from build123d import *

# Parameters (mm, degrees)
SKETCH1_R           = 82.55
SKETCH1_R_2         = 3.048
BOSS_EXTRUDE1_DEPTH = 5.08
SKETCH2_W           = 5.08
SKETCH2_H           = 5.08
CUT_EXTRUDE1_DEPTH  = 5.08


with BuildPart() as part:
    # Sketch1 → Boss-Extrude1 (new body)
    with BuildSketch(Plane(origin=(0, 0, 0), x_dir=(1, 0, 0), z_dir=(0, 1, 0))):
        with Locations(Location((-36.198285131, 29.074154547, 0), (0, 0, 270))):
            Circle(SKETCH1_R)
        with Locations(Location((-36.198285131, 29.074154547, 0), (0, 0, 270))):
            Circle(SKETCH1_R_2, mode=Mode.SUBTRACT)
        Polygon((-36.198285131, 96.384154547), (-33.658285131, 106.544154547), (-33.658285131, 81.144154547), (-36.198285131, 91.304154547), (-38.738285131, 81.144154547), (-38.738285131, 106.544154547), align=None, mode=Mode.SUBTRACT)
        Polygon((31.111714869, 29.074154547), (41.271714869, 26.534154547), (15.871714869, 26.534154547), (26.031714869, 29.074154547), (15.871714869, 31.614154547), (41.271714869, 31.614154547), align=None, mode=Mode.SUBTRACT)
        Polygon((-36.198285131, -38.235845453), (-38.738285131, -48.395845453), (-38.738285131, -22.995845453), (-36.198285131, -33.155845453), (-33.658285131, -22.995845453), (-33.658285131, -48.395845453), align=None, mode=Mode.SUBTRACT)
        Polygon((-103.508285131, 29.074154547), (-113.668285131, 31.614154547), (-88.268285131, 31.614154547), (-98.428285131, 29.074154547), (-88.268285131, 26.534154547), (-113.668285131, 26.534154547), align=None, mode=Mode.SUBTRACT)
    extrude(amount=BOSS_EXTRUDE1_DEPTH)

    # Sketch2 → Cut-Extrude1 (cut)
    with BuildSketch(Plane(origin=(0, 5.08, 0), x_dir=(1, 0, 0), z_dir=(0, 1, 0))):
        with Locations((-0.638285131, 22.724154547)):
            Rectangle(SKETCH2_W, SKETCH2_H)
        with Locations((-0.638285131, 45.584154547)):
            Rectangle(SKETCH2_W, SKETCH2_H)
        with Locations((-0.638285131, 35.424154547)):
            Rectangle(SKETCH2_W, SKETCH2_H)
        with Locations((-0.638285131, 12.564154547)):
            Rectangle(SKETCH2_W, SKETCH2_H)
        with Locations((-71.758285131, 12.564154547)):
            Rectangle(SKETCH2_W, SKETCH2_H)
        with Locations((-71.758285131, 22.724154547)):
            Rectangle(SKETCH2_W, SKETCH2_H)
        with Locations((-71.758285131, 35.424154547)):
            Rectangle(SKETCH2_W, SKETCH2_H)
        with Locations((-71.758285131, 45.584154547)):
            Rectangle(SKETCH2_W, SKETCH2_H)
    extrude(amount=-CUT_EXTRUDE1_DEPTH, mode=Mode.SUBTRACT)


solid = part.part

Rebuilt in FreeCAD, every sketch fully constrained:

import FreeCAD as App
import Part
import Sketcher
from FreeCAD import Vector
Q = App.Units.Quantity

doc = App.newDocument("Part")
body = doc.addObject("PartDesign::Body", "Body")

# Sketch on XZ plane
sketch1 = doc.addObject("Sketcher::SketchObject", "Sketch")
body.addObject(sketch1)
sketch1.AttachmentSupport = (doc.XZ_Plane, [""])
sketch1.MapMode = "FlatFace"
sketch1.addGeometry([
    Part.Circle(Vector(-36.198285, -29.074155, 0), Vector(0, 0, 1), 82.55),  # 0
    Part.LineSegment(Vector(-38.738285, -106.544155, 0), Vector(-36.198285, -96.384155, 0)),  # 1
    Part.LineSegment(Vector(-36.198285, -96.384155, 0), Vector(-33.658285, -106.544155, 0)),  # 2
    Part.LineSegment(Vector(-33.658285, -106.544155, 0), Vector(-33.658285, -81.144155, 0)),  # 3
    Part.LineSegment(Vector(-33.658285, -81.144155, 0), Vector(-36.198285, -91.304155, 0)),  # 4
    Part.LineSegment(Vector(-36.198285, -91.304155, 0), Vector(-38.738285, -81.144155, 0)),  # 5
    Part.LineSegment(Vector(-38.738285, -81.144155, 0), Vector(-38.738285, -106.544155, 0)),  # 6
    Part.LineSegment(Vector(-113.668285, -26.534155, 0), Vector(-103.508285, -29.074155, 0)),  # 7
    Part.LineSegment(Vector(-103.508285, -29.074155, 0), Vector(-113.668285, -31.614155, 0)),  # 8
    Part.LineSegment(Vector(-113.668285, -31.614155, 0), Vector(-88.268285, -31.614155, 0)),  # 9
    Part.LineSegment(Vector(-88.268285, -31.614155, 0), Vector(-98.428285, -29.074155, 0)),  # 10
    Part.LineSegment(Vector(-98.428285, -29.074155, 0), Vector(-88.268285, -26.534155, 0)),  # 11
    Part.LineSegment(Vector(-88.268285, -26.534155, 0), Vector(-113.668285, -26.534155, 0)),  # 12
    Part.LineSegment(Vector(41.271715, -31.614155, 0), Vector(31.111715, -29.074155, 0)),  # 13
    Part.LineSegment(Vector(31.111715, -29.074155, 0), Vector(41.271715, -26.534155, 0)),  # 14
    Part.LineSegment(Vector(41.271715, -26.534155, 0), Vector(15.871715, -26.534155, 0)),  # 15
    Part.LineSegment(Vector(15.871715, -26.534155, 0), Vector(26.031715, -29.074155, 0)),  # 16
    Part.LineSegment(Vector(26.031715, -29.074155, 0), Vector(15.871715, -31.614155, 0)),  # 17
    Part.LineSegment(Vector(15.871715, -31.614155, 0), Vector(41.271715, -31.614155, 0)),  # 18
    Part.Circle(Vector(-36.198285, -29.074155, 0), Vector(0, 0, 1), 3.048),  # 19
    Part.LineSegment(Vector(-33.658285, 48.395845, 0), Vector(-36.198285, 38.235845, 0)),  # 20
    Part.LineSegment(Vector(-36.198285, 38.235845, 0), Vector(-38.738285, 48.395845, 0)),  # 21
    Part.LineSegment(Vector(-38.738285, 48.395845, 0), Vector(-38.738285, 22.995845, 0)),  # 22
    Part.LineSegment(Vector(-38.738285, 22.995845, 0), Vector(-36.198285, 33.155845, 0)),  # 23
    Part.LineSegment(Vector(-36.198285, 33.155845, 0), Vector(-33.658285, 22.995845, 0)),  # 24
    Part.LineSegment(Vector(-33.658285, 22.995845, 0), Vector(-33.658285, 48.395845, 0)),  # 25
], False)
sketch1.addConstraint([
    Sketcher.Constraint("Coincident", 1, 2, 2, 1),
    Sketcher.Constraint("Coincident", 2, 2, 3, 1),
    Sketcher.Constraint("Coincident", 3, 2, 4, 1),
    Sketcher.Constraint("Coincident", 4, 2, 5, 1),
    Sketcher.Constraint("Coincident", 5, 2, 6, 1),
    Sketcher.Constraint("Coincident", 6, 2, 1, 1),
    Sketcher.Constraint("Coincident", 7, 2, 8, 1),
    Sketcher.Constraint("Coincident", 8, 2, 9, 1),
    Sketcher.Constraint("Coincident", 9, 2, 10, 1),
    Sketcher.Constraint("Coincident", 10, 2, 11, 1),
    Sketcher.Constraint("Coincident", 11, 2, 12, 1),
    Sketcher.Constraint("Coincident", 12, 2, 7, 1),
    Sketcher.Constraint("Coincident", 13, 2, 14, 1),
    Sketcher.Constraint("Coincident", 14, 2, 15, 1),
    Sketcher.Constraint("Coincident", 15, 2, 16, 1),
    Sketcher.Constraint("Coincident", 16, 2, 17, 1),
    Sketcher.Constraint("Coincident", 17, 2, 18, 1),
    Sketcher.Constraint("Coincident", 18, 2, 13, 1),
    Sketcher.Constraint("Coincident", 20, 2, 21, 1),
    Sketcher.Constraint("Coincident", 21, 2, 22, 1),
    Sketcher.Constraint("Coincident", 22, 2, 23, 1),
    Sketcher.Constraint("Coincident", 23, 2, 24, 1),
    Sketcher.Constraint("Coincident", 24, 2, 25, 1),
    Sketcher.Constraint("Coincident", 25, 2, 20, 1),
    Sketcher.Constraint("Vertical", 3),
    Sketcher.Constraint("Vertical", 6),
    Sketcher.Constraint("Horizontal", 9),
    Sketcher.Constraint("Horizontal", 12),
    Sketcher.Constraint("Horizontal", 15),
    Sketcher.Constraint("Horizontal", 18),
    Sketcher.Constraint("Vertical", 22),
    Sketcher.Constraint("Vertical", 25),
    Sketcher.Constraint("Coincident", 19, 3, 0, 3),
    Sketcher.Constraint("Parallel", 1, 4),
    Sketcher.Constraint("Parallel", 2, 5),
    Sketcher.Constraint("Perpendicular", 4, 7),
    Sketcher.Constraint("Perpendicular", 5, 8),
    Sketcher.Constraint("Parallel", 7, 10),
    Sketcher.Constraint("Parallel", 8, 11),
    Sketcher.Constraint("Parallel", 10, 13),
    Sketcher.Constraint("Parallel", 11, 14),
    Sketcher.Constraint("Parallel", 13, 16),
    Sketcher.Constraint("Parallel", 14, 17),
    Sketcher.Constraint("Perpendicular", 16, 20),
    Sketcher.Constraint("Perpendicular", 17, 21),
    Sketcher.Constraint("Parallel", 20, 23),
    Sketcher.Constraint("Parallel", 21, 24),
    Sketcher.Constraint("Horizontal", 3, 2, 5, 2),
    Sketcher.Constraint("Horizontal", 2, 2, 6, 2),
    Sketcher.Constraint("Horizontal", 19, 3, 7, 2),
    Sketcher.Constraint("Horizontal", 7, 2, 10, 2),
    Sketcher.Constraint("Horizontal", 10, 2, 13, 2),
    Sketcher.Constraint("Horizontal", 12, 2, 14, 2),
    Sketcher.Constraint("Horizontal", 13, 2, 16, 2),
    Sketcher.Constraint("Horizontal", 9, 2, 17, 2),
    Sketcher.Constraint("Horizontal", 22, 2, 24, 2),
    Sketcher.Constraint("Horizontal", 21, 2, 25, 2),
    Sketcher.Constraint("Vertical", 19, 3, 1, 2),
    Sketcher.Constraint("Vertical", 1, 2, 4, 2),
    Sketcher.Constraint("Vertical", 9, 2, 11, 2),
    Sketcher.Constraint("Vertical", 4, 2, 20, 2),
    Sketcher.Constraint("Vertical", 6, 2, 21, 2),
    Sketcher.Constraint("Equal", 12, 15),
    Sketcher.Constraint("Equal", 18, 3),
    Sketcher.Constraint("Equal", 6, 22),
    Sketcher.Constraint("Equal", 5, 7),
    Sketcher.Constraint("Diameter", 0, Q("6.5 in")),
    Sketcher.Constraint("Diameter", 19, Q("0.24 in")),
    Sketcher.Constraint("DistanceX", 9, 1, 9, 2, Q("1 in")),
    Sketcher.Constraint("DistanceX", 1, 2, 2, 2, Q("0.1 in")),
    Sketcher.Constraint("DistanceY", 2, 2, 1, 2, Q("0.4 in")),
    Sketcher.Constraint("DistanceY", 1, 2, 0, 3, Q("2.65 in")),
    Sketcher.Constraint("DistanceX", 7, 2, 0, 3, Q("2.65 in")),
    Sketcher.Constraint("DistanceX", 0, 3, 13, 2, Q("2.65 in")),
    Sketcher.Constraint("DistanceY", 0, 3, 20, 2, Q("2.65 in")),
    Sketcher.Constraint("DistanceX", 0, 3, -1, 1, Q("36.198285 mm")),
    Sketcher.Constraint("DistanceY", 0, 3, -1, 1, Q("29.074155 mm")),
])
pad1 = doc.addObject("PartDesign::Pad", "Pad")
body.addObject(pad1)
pad1.Profile = sketch1
pad1.Length = Q("0.2 in")
pad1.Reversed = True

# Sketch on XZ plane
sketch2 = doc.addObject("Sketcher::SketchObject", "Sketch001")
body.addObject(sketch2)
sketch2.AttachmentSupport = (doc.XZ_Plane, [""])
sketch2.MapMode = "FlatFace"
sketch2.AttachmentOffset = App.Placement(Vector(0, 0, -0.2 * 25.4), App.Rotation())
sketch2.addGeometry([
    Part.LineSegment(Vector(-3.178285, -25.264155, 0), Vector(-3.178285, -20.184155, 0)),  # 0
    Part.LineSegment(Vector(-3.178285, -20.184155, 0), Vector(1.901715, -20.184155, 0)),  # 1
    Part.LineSegment(Vector(1.901715, -20.184155, 0), Vector(1.901715, -25.264155, 0)),  # 2
    Part.LineSegment(Vector(1.901715, -25.264155, 0), Vector(-3.178285, -25.264155, 0)),  # 3
    Part.LineSegment(Vector(-3.178285, -48.124155, 0), Vector(-3.178285, -43.044155, 0)),  # 4
    Part.LineSegment(Vector(-3.178285, -43.044155, 0), Vector(1.901715, -43.044155, 0)),  # 5
    Part.LineSegment(Vector(1.901715, -43.044155, 0), Vector(1.901715, -48.124155, 0)),  # 6
    Part.LineSegment(Vector(1.901715, -48.124155, 0), Vector(-3.178285, -48.124155, 0)),  # 7
    Part.LineSegment(Vector(-3.178285, -37.964155, 0), Vector(-3.178285, -32.884155, 0)),  # 8
    Part.LineSegment(Vector(-3.178285, -32.884155, 0), Vector(1.901715, -32.884155, 0)),  # 9
    Part.LineSegment(Vector(1.901715, -32.884155, 0), Vector(1.901715, -37.964155, 0)),  # 10
    Part.LineSegment(Vector(1.901715, -37.964155, 0), Vector(-3.178285, -37.964155, 0)),  # 11
    Part.LineSegment(Vector(-3.178285, -15.104155, 0), Vector(-3.178285, -10.024155, 0)),  # 12
    Part.LineSegment(Vector(-3.178285, -10.024155, 0), Vector(1.901715, -10.024155, 0)),  # 13
    Part.LineSegment(Vector(1.901715, -10.024155, 0), Vector(1.901715, -15.104155, 0)),  # 14
    Part.LineSegment(Vector(1.901715, -15.104155, 0), Vector(-3.178285, -15.104155, 0)),  # 15
    Part.LineSegment(Vector(-74.298285, -15.104155, 0), Vector(-74.298285, -10.024155, 0)),  # 16
    Part.LineSegment(Vector(-74.298285, -10.024155, 0), Vector(-69.218285, -10.024155, 0)),  # 17
    Part.LineSegment(Vector(-69.218285, -10.024155, 0), Vector(-69.218285, -15.104155, 0)),  # 18
    Part.LineSegment(Vector(-69.218285, -15.104155, 0), Vector(-74.298285, -15.104155, 0)),  # 19
    Part.LineSegment(Vector(-74.298285, -25.264155, 0), Vector(-74.298285, -20.184155, 0)),  # 20
    Part.LineSegment(Vector(-74.298285, -20.184155, 0), Vector(-69.218285, -20.184155, 0)),  # 21
    Part.LineSegment(Vector(-69.218285, -20.184155, 0), Vector(-69.218285, -25.264155, 0)),  # 22
    Part.LineSegment(Vector(-69.218285, -25.264155, 0), Vector(-74.298285, -25.264155, 0)),  # 23
    Part.LineSegment(Vector(-74.298285, -37.964155, 0), Vector(-74.298285, -32.884155, 0)),  # 24
    Part.LineSegment(Vector(-74.298285, -32.884155, 0), Vector(-69.218285, -32.884155, 0)),  # 25
    Part.LineSegment(Vector(-69.218285, -32.884155, 0), Vector(-69.218285, -37.964155, 0)),  # 26
    Part.LineSegment(Vector(-69.218285, -37.964155, 0), Vector(-74.298285, -37.964155, 0)),  # 27
    Part.LineSegment(Vector(-74.298285, -48.124155, 0), Vector(-74.298285, -43.044155, 0)),  # 28
    Part.LineSegment(Vector(-74.298285, -43.044155, 0), Vector(-69.218285, -43.044155, 0)),  # 29
    Part.LineSegment(Vector(-69.218285, -43.044155, 0), Vector(-69.218285, -48.124155, 0)),  # 30
    Part.LineSegment(Vector(-69.218285, -48.124155, 0), Vector(-74.298285, -48.124155, 0)),  # 31
], False)
sketch2.addConstraint([
    Sketcher.Constraint("Coincident", 0, 2, 1, 1),
    Sketcher.Constraint("Coincident", 1, 2, 2, 1),
    Sketcher.Constraint("Coincident", 2, 2, 3, 1),
    Sketcher.Constraint("Coincident", 3, 2, 0, 1),
    Sketcher.Constraint("Coincident", 4, 2, 5, 1),
    Sketcher.Constraint("Coincident", 5, 2, 6, 1),
    Sketcher.Constraint("Coincident", 6, 2, 7, 1),
    Sketcher.Constraint("Coincident", 7, 2, 4, 1),
    Sketcher.Constraint("Coincident", 8, 2, 9, 1),
    Sketcher.Constraint("Coincident", 9, 2, 10, 1),
    Sketcher.Constraint("Coincident", 10, 2, 11, 1),
    Sketcher.Constraint("Coincident", 11, 2, 8, 1),
    Sketcher.Constraint("Coincident", 12, 2, 13, 1),
    Sketcher.Constraint("Coincident", 13, 2, 14, 1),
    Sketcher.Constraint("Coincident", 14, 2, 15, 1),
    Sketcher.Constraint("Coincident", 15, 2, 12, 1),
    Sketcher.Constraint("Coincident", 16, 2, 17, 1),
    Sketcher.Constraint("Coincident", 17, 2, 18, 1),
    Sketcher.Constraint("Coincident", 18, 2, 19, 1),
    Sketcher.Constraint("Coincident", 19, 2, 16, 1),
    Sketcher.Constraint("Coincident", 20, 2, 21, 1),
    Sketcher.Constraint("Coincident", 21, 2, 22, 1),
    Sketcher.Constraint("Coincident", 22, 2, 23, 1),
    Sketcher.Constraint("Coincident", 23, 2, 20, 1),
    Sketcher.Constraint("Coincident", 24, 2, 25, 1),
    Sketcher.Constraint("Coincident", 25, 2, 26, 1),
    Sketcher.Constraint("Coincident", 26, 2, 27, 1),
    Sketcher.Constraint("Coincident", 27, 2, 24, 1),
    Sketcher.Constraint("Coincident", 28, 2, 29, 1),
    Sketcher.Constraint("Coincident", 29, 2, 30, 1),
    Sketcher.Constraint("Coincident", 30, 2, 31, 1),
    Sketcher.Constraint("Coincident", 31, 2, 28, 1),
    Sketcher.Constraint("Vertical", 0),
    Sketcher.Constraint("Horizontal", 1),
    Sketcher.Constraint("Vertical", 2),
    Sketcher.Constraint("Horizontal", 3),
    Sketcher.Constraint("Vertical", 4),
    Sketcher.Constraint("Horizontal", 5),
    Sketcher.Constraint("Vertical", 6),
    Sketcher.Constraint("Horizontal", 7),
    Sketcher.Constraint("Vertical", 8),
    Sketcher.Constraint("Horizontal", 9),
    Sketcher.Constraint("Vertical", 10),
    Sketcher.Constraint("Horizontal", 11),
    Sketcher.Constraint("Vertical", 12),
    Sketcher.Constraint("Horizontal", 13),
    Sketcher.Constraint("Vertical", 14),
    Sketcher.Constraint("Horizontal", 15),
    Sketcher.Constraint("Vertical", 16),
    Sketcher.Constraint("Horizontal", 17),
    Sketcher.Constraint("Vertical", 18),
    Sketcher.Constraint("Horizontal", 19),
    Sketcher.Constraint("Vertical", 20),
    Sketcher.Constraint("Horizontal", 21),
    Sketcher.Constraint("Vertical", 22),
    Sketcher.Constraint("Horizontal", 23),
    Sketcher.Constraint("Vertical", 24),
    Sketcher.Constraint("Horizontal", 25),
    Sketcher.Constraint("Vertical", 26),
    Sketcher.Constraint("Horizontal", 27),
    Sketcher.Constraint("Vertical", 28),
    Sketcher.Constraint("Horizontal", 29),
    Sketcher.Constraint("Vertical", 30),
    Sketcher.Constraint("Horizontal", 31),
    Sketcher.Constraint("Horizontal", 13, 2, 16, 2),
    Sketcher.Constraint("Horizontal", 15, 2, 18, 2),
    Sketcher.Constraint("Horizontal", 1, 2, 20, 2),
    Sketcher.Constraint("Horizontal", 3, 2, 22, 2),
    Sketcher.Constraint("Horizontal", 9, 2, 24, 2),
    Sketcher.Constraint("Horizontal", 11, 2, 26, 2),
    Sketcher.Constraint("Horizontal", 5, 2, 28, 2),
    Sketcher.Constraint("Horizontal", 7, 2, 30, 2),
    Sketcher.Constraint("Vertical", 3, 2, 4, 2),
    Sketcher.Constraint("Vertical", 2, 2, 5, 2),
    Sketcher.Constraint("Vertical", 7, 2, 8, 2),
    Sketcher.Constraint("Vertical", 6, 2, 9, 2),
    Sketcher.Constraint("Vertical", 11, 2, 12, 2),
    Sketcher.Constraint("Vertical", 10, 2, 13, 2),
    Sketcher.Constraint("Vertical", 19, 2, 20, 2),
    Sketcher.Constraint("Vertical", 18, 2, 21, 2),
    Sketcher.Constraint("Vertical", 23, 2, 24, 2),
    Sketcher.Constraint("Vertical", 22, 2, 25, 2),
    Sketcher.Constraint("Vertical", 27, 2, 28, 2),
    Sketcher.Constraint("Vertical", 26, 2, 29, 2),
    Sketcher.Constraint("Equal", 15, 17),
    Sketcher.Constraint("Equal", 31, 0),
    Sketcher.Constraint("Equal", 2, 4),
    Sketcher.Constraint("Equal", 6, 8),
    Sketcher.Constraint("Equal", 10, 12),
    Sketcher.Constraint("DistanceX", 1, 1, 1, 2, Q("0.2 in")),
    Sketcher.Constraint("DistanceY", 4, 2, 3, 2, Q("0.7 in")),
    Sketcher.Constraint("DistanceY", 8, 2, 3, 2, Q("0.3 in")),
    Sketcher.Constraint("DistanceY", 0, 2, 12, 2, Q("0.4 in")),
    Sketcher.Constraint("DistanceX", 16, 2, 12, 2, Q("2.8 in")),
    Sketcher.Constraint("DistanceX", 0, 2, -1, 1, Q("3.178285 mm")),
    Sketcher.Constraint("DistanceY", 0, 2, -1, 1, Q("20.184155 mm")),
])
pocket1 = doc.addObject("PartDesign::Pocket", "Pocket")
body.addObject(pocket1)
pocket1.Profile = sketch2
pocket1.Length = Q("0.2 in")
pocket1.Reversed = True

doc.recompute()
